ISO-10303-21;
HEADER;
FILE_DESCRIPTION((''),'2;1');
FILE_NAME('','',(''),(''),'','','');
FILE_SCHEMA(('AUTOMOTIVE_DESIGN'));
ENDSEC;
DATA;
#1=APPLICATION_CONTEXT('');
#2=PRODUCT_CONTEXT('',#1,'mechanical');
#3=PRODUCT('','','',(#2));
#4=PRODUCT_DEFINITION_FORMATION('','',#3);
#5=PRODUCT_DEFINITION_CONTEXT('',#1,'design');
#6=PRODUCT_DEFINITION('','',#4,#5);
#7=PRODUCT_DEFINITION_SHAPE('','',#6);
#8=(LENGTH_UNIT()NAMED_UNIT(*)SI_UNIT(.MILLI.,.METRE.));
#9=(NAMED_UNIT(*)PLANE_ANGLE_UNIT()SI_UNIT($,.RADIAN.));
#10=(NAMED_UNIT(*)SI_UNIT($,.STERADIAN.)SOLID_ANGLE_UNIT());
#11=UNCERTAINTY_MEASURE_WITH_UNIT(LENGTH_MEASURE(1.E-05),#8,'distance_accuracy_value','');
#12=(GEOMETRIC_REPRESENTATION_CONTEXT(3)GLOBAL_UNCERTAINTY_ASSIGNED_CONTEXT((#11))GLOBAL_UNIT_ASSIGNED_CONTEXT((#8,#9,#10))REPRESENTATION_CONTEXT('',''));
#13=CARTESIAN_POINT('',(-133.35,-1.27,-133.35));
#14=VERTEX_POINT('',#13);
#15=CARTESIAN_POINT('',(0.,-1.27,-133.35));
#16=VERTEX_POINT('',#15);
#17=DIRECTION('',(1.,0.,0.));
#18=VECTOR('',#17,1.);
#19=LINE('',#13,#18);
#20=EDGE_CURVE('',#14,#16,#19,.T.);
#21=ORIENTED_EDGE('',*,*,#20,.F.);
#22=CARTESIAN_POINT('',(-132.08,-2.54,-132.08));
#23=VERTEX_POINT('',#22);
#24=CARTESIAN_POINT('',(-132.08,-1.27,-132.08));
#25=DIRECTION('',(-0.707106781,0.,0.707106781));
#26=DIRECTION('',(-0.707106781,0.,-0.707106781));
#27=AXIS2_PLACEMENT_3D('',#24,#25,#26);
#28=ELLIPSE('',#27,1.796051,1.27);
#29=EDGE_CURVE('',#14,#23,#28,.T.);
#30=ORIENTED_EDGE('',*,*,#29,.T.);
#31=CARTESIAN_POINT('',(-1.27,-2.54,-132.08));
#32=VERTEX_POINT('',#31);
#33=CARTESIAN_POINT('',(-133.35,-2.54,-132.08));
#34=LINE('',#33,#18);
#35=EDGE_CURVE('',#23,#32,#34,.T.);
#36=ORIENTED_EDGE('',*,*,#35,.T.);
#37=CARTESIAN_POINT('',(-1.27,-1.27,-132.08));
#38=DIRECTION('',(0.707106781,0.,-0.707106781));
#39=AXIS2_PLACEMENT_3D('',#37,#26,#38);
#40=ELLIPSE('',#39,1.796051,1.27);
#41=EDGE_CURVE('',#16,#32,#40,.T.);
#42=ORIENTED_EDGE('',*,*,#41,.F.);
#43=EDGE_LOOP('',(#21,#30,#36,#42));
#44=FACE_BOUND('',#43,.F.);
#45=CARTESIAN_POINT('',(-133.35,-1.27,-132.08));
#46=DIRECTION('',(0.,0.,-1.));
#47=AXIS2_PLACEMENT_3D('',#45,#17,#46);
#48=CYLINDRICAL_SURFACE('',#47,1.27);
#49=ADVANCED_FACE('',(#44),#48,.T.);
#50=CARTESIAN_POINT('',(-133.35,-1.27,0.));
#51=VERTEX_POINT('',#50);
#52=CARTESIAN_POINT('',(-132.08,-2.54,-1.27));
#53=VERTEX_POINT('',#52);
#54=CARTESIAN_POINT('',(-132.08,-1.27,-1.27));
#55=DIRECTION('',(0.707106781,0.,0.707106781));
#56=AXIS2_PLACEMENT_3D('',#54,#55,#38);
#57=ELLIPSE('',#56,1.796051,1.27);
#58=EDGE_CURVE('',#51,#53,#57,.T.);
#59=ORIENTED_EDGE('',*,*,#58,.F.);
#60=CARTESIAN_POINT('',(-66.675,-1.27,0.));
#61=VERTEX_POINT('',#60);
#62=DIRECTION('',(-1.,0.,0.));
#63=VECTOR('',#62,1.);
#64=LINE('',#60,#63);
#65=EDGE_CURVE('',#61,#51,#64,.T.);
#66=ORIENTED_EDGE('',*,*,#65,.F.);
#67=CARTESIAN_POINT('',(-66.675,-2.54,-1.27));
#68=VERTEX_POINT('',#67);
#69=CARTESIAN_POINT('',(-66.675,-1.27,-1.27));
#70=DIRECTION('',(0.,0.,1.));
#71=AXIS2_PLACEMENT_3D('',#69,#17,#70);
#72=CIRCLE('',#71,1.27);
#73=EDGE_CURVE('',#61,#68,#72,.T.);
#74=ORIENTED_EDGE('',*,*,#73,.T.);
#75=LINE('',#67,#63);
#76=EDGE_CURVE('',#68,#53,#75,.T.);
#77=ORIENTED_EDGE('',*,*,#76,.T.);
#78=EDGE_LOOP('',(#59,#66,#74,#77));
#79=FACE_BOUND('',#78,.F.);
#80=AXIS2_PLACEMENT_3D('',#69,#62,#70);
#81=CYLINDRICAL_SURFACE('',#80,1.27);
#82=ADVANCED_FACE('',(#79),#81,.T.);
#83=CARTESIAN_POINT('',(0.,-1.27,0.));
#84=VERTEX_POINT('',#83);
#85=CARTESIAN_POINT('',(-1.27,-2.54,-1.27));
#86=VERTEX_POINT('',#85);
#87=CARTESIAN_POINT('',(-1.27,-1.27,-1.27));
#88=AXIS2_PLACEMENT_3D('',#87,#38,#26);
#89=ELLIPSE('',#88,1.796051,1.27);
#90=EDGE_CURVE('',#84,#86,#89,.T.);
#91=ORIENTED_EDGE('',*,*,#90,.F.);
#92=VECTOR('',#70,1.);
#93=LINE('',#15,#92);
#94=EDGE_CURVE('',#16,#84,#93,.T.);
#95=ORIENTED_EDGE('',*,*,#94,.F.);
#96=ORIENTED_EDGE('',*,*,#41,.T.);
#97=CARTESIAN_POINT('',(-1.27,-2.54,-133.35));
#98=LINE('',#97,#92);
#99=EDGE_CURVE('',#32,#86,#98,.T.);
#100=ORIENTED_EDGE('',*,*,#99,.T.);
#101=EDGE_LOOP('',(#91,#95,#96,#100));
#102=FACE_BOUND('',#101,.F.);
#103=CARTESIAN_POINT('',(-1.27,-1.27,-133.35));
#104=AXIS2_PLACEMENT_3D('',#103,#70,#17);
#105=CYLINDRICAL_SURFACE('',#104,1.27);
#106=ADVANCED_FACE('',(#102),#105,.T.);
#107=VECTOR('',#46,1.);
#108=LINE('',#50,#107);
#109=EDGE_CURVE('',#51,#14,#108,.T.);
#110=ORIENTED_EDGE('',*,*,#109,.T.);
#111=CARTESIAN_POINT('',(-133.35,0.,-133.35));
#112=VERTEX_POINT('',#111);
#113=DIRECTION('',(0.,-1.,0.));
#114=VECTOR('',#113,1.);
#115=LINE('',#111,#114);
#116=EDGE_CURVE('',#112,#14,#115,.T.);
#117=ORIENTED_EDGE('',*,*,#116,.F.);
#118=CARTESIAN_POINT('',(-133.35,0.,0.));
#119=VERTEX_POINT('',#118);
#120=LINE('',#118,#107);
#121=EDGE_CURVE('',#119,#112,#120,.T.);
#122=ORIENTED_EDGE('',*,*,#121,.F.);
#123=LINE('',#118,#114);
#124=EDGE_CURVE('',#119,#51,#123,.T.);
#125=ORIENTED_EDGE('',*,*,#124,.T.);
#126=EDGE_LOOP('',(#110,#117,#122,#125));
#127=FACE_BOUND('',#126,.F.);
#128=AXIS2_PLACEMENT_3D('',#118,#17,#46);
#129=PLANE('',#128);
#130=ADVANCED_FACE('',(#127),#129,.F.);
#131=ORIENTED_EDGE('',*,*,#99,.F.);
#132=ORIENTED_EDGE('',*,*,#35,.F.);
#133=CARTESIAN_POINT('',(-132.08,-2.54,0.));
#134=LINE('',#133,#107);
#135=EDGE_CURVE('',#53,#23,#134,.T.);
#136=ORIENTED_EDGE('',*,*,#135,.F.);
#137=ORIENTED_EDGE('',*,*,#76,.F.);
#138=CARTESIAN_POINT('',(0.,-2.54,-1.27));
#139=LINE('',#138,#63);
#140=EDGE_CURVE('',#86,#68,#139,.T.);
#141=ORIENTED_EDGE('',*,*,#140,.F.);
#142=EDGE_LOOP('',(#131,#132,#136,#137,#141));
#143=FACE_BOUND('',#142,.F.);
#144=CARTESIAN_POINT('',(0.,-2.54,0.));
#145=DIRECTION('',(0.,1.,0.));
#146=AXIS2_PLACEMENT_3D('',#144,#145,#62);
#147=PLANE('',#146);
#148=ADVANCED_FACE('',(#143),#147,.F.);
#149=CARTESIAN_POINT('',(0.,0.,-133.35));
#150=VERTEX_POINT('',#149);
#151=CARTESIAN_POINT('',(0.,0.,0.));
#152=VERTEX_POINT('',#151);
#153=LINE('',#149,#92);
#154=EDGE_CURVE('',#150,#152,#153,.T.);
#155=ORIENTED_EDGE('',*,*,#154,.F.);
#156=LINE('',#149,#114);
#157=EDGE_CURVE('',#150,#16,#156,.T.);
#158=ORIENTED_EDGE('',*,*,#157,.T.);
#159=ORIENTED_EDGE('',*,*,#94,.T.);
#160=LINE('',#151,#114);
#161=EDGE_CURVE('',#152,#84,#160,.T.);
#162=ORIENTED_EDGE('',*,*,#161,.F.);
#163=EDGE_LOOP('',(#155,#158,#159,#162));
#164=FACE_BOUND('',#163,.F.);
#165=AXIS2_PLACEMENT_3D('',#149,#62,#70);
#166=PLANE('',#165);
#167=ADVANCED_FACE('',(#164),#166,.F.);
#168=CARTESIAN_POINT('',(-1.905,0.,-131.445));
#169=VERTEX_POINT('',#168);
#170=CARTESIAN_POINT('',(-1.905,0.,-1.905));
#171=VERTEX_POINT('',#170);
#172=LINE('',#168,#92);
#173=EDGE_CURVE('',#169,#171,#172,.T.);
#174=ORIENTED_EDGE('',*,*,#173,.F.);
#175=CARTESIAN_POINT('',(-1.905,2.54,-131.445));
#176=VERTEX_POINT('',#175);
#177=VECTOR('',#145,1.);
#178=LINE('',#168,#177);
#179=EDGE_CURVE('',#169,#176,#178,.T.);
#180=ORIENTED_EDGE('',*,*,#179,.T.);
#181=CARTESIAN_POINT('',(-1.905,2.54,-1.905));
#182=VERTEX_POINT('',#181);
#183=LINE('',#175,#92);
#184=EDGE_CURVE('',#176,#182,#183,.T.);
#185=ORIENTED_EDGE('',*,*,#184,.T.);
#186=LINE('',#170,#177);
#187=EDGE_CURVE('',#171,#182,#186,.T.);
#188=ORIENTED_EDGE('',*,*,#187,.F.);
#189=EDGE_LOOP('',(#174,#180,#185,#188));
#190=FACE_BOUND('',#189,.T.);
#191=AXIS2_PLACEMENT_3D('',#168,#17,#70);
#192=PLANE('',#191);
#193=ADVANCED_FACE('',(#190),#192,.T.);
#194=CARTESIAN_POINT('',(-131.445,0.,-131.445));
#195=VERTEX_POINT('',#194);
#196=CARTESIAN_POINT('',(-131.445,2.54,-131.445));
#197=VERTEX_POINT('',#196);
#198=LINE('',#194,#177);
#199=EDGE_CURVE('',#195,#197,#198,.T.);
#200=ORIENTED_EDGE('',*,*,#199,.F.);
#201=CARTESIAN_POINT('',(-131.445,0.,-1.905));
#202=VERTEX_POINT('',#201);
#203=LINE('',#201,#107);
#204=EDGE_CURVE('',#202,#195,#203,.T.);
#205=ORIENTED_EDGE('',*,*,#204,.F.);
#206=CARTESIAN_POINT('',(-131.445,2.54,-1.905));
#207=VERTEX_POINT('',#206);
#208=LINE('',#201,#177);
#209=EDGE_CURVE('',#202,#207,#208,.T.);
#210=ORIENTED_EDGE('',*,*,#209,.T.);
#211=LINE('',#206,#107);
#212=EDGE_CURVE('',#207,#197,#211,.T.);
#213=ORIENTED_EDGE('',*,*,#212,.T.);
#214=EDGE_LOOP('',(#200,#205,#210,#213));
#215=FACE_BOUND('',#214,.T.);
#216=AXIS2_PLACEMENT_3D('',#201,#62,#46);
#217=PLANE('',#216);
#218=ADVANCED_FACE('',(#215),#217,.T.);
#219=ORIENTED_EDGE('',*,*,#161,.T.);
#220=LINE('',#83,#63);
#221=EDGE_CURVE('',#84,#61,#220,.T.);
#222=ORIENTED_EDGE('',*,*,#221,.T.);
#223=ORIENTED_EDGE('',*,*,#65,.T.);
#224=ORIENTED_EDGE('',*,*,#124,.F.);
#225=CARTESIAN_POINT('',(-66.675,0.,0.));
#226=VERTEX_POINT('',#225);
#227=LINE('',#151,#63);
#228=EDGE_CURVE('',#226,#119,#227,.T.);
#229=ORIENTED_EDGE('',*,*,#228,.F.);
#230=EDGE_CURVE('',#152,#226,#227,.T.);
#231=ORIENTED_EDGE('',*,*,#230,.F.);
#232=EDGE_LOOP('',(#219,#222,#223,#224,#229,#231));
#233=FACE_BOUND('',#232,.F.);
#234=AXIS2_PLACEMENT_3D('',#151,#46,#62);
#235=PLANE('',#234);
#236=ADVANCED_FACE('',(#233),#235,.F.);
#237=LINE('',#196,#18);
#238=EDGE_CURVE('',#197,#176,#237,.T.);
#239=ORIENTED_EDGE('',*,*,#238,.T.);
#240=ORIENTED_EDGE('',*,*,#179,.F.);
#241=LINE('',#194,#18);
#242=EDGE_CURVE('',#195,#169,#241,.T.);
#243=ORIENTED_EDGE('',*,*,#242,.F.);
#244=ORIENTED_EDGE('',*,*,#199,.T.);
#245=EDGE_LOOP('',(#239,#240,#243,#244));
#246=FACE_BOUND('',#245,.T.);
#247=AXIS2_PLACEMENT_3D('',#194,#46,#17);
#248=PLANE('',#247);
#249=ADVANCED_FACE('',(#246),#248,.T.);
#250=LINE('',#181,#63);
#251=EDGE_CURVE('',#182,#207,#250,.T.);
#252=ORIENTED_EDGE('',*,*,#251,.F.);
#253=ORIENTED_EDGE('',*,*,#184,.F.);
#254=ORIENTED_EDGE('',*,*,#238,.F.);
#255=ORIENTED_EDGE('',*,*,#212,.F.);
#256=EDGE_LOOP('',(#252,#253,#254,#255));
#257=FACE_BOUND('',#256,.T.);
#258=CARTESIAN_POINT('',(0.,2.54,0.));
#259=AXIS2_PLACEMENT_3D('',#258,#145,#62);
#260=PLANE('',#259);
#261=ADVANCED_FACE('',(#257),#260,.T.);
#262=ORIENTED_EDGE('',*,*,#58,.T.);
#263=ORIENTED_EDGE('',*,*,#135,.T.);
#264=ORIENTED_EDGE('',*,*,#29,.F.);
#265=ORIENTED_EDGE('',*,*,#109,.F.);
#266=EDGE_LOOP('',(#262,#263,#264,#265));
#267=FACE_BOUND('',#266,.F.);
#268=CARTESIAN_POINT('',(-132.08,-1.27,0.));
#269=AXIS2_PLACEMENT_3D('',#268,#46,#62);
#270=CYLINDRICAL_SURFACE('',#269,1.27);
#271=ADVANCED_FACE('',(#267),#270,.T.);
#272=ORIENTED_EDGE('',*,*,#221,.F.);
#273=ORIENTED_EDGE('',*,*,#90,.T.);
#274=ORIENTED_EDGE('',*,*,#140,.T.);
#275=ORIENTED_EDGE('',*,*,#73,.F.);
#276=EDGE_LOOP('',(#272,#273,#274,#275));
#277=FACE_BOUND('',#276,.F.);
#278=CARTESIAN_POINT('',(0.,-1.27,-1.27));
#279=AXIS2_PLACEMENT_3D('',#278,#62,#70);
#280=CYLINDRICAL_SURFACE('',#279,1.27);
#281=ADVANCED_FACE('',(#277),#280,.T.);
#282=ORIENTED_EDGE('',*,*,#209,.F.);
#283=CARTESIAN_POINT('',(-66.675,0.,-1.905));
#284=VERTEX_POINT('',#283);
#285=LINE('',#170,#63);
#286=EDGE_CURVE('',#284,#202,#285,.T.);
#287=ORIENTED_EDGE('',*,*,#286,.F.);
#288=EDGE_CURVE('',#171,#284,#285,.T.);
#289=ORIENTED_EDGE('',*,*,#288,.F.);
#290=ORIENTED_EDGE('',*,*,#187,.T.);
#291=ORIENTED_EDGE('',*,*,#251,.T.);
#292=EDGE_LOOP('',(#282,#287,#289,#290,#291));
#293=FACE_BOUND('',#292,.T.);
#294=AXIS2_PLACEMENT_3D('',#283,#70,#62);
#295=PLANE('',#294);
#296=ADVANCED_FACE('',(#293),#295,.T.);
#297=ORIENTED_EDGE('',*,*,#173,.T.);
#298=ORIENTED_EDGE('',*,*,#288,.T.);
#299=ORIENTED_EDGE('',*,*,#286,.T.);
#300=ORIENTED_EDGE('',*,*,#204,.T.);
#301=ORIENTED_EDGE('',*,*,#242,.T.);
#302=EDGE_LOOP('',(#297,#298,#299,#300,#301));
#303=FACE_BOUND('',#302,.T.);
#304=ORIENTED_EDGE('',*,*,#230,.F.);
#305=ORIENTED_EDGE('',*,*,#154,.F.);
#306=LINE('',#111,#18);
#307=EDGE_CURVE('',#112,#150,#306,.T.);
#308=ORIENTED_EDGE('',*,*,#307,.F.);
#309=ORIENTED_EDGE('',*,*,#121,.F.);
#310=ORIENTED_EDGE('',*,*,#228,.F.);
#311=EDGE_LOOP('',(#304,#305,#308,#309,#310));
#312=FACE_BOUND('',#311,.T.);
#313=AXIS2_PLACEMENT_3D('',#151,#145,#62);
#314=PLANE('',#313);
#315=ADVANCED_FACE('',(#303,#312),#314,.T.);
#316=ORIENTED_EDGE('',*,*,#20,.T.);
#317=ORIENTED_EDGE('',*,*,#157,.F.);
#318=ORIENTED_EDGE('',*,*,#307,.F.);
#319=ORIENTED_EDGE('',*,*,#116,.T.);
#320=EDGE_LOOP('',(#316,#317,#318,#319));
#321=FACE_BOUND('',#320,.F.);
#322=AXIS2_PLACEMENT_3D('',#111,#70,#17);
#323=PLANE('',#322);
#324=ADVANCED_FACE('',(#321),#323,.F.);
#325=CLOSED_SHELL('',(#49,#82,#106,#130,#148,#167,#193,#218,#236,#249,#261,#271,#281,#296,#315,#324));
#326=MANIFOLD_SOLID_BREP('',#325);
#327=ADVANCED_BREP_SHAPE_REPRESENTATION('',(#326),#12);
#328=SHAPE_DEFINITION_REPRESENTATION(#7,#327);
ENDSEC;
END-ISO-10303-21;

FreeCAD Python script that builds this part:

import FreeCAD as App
import Part
import Sketcher
from FreeCAD import Vector
Q = App.Units.Quantity


def edges_at(feature, points):
    """Names of the edges that pass closest to the given points."""
    edges = feature.Shape.Edges
    near = lambda p: min(range(len(edges)), key=lambda i: edges[i].distToShape(Part.Vertex(*p))[0])
    return sorted({f"Edge{near(p) + 1}" for p in points})


def add_polygon(sketch, points):
    """Adds a closed chain of lines whose ends are joined by coincident constraints."""
    first, n = sketch.GeometryCount, len(points)
    for a, b in zip(points, points[1:] + points[:1]):
        sketch.addGeometry(Part.LineSegment(App.Vector(*a, 0), App.Vector(*b, 0)), False)
    for i in range(n):
        sketch.addConstraint(Sketcher.Constraint("Coincident", first + i, 2, first + (i + 1) % n, 1))

doc = App.newDocument("Part")
body = doc.addObject("PartDesign::Body", "Body")

sketch1 = body.newObject("Sketcher::SketchObject", "Sketch")
sketch1.AttachmentSupport = (doc.getObject("XZ_Plane"), [""])
sketch1.MapMode = "FlatFace"
add_polygon(sketch1, [(-131, -2), (-2, -2), (-2, -131), (-131, -131)])
sketch1.addConstraint([
    Sketcher.Constraint("Horizontal", 0),
    Sketcher.Constraint("Vertical", 1),
    Sketcher.Constraint("Horizontal", 2),
    Sketcher.Constraint("Vertical", 3),
    Sketcher.Constraint("Equal", 2, 1),
    Sketcher.Constraint("DistanceX", 0, 1, 0, 2, Q("5.1 in")),
    Sketcher.Constraint("DistanceX", 0, 2, -1, 1, Q("0.075 in")),
    Sketcher.Constraint("DistanceY", 0, 2, -1, 1, Q("0.075 in")),
])
pad1 = body.newObject("PartDesign::Pad", "Pad")
pad1.Profile = sketch1
pad1.Length = Q("0.1 in")
pad1.Reversed = True

sketch2 = body.newObject("Sketcher::SketchObject", "Sketch001")
sketch2.AttachmentSupport = (doc.getObject("XZ_Plane"), [""])
sketch2.MapMode = "FlatFace"
add_polygon(sketch2, [(-67, 0), (0, 0), (0, -133), (-133, -133), (-133, 0)])
sketch2.addConstraint([
    Sketcher.Constraint("Horizontal", 0),
    Sketcher.Constraint("Vertical", 1),
    Sketcher.Constraint("Horizontal", 2),
    Sketcher.Constraint("Vertical", 3),
    Sketcher.Constraint("Horizontal", 4),
    Sketcher.Constraint("Coincident", 0, 2, -1, 1),
    Sketcher.Constraint("Equal", 0, 4),
    Sketcher.Constraint("Equal", 2, 1),
    Sketcher.Constraint("DistanceX", 2, 2, 2, 1, Q("5.25 in")),
])
pad2 = body.newObject("PartDesign::Pad", "Pad001")
pad2.Profile = sketch2
pad2.Length = Q("0.1 in")
doc.recompute()

fillet = body.newObject("PartDesign::Fillet", "Fillet")
fillet.Base = (pad2, edges_at(pad2, [
    (-133.35, -2.54, -66.675),
    (-66.675, -2.54, -133.35),
    (-66.675, -2.54, 0),
    (0, -2.54, -66.675),
]))
fillet.Radius = Q("0.05 in")

doc.recompute()
